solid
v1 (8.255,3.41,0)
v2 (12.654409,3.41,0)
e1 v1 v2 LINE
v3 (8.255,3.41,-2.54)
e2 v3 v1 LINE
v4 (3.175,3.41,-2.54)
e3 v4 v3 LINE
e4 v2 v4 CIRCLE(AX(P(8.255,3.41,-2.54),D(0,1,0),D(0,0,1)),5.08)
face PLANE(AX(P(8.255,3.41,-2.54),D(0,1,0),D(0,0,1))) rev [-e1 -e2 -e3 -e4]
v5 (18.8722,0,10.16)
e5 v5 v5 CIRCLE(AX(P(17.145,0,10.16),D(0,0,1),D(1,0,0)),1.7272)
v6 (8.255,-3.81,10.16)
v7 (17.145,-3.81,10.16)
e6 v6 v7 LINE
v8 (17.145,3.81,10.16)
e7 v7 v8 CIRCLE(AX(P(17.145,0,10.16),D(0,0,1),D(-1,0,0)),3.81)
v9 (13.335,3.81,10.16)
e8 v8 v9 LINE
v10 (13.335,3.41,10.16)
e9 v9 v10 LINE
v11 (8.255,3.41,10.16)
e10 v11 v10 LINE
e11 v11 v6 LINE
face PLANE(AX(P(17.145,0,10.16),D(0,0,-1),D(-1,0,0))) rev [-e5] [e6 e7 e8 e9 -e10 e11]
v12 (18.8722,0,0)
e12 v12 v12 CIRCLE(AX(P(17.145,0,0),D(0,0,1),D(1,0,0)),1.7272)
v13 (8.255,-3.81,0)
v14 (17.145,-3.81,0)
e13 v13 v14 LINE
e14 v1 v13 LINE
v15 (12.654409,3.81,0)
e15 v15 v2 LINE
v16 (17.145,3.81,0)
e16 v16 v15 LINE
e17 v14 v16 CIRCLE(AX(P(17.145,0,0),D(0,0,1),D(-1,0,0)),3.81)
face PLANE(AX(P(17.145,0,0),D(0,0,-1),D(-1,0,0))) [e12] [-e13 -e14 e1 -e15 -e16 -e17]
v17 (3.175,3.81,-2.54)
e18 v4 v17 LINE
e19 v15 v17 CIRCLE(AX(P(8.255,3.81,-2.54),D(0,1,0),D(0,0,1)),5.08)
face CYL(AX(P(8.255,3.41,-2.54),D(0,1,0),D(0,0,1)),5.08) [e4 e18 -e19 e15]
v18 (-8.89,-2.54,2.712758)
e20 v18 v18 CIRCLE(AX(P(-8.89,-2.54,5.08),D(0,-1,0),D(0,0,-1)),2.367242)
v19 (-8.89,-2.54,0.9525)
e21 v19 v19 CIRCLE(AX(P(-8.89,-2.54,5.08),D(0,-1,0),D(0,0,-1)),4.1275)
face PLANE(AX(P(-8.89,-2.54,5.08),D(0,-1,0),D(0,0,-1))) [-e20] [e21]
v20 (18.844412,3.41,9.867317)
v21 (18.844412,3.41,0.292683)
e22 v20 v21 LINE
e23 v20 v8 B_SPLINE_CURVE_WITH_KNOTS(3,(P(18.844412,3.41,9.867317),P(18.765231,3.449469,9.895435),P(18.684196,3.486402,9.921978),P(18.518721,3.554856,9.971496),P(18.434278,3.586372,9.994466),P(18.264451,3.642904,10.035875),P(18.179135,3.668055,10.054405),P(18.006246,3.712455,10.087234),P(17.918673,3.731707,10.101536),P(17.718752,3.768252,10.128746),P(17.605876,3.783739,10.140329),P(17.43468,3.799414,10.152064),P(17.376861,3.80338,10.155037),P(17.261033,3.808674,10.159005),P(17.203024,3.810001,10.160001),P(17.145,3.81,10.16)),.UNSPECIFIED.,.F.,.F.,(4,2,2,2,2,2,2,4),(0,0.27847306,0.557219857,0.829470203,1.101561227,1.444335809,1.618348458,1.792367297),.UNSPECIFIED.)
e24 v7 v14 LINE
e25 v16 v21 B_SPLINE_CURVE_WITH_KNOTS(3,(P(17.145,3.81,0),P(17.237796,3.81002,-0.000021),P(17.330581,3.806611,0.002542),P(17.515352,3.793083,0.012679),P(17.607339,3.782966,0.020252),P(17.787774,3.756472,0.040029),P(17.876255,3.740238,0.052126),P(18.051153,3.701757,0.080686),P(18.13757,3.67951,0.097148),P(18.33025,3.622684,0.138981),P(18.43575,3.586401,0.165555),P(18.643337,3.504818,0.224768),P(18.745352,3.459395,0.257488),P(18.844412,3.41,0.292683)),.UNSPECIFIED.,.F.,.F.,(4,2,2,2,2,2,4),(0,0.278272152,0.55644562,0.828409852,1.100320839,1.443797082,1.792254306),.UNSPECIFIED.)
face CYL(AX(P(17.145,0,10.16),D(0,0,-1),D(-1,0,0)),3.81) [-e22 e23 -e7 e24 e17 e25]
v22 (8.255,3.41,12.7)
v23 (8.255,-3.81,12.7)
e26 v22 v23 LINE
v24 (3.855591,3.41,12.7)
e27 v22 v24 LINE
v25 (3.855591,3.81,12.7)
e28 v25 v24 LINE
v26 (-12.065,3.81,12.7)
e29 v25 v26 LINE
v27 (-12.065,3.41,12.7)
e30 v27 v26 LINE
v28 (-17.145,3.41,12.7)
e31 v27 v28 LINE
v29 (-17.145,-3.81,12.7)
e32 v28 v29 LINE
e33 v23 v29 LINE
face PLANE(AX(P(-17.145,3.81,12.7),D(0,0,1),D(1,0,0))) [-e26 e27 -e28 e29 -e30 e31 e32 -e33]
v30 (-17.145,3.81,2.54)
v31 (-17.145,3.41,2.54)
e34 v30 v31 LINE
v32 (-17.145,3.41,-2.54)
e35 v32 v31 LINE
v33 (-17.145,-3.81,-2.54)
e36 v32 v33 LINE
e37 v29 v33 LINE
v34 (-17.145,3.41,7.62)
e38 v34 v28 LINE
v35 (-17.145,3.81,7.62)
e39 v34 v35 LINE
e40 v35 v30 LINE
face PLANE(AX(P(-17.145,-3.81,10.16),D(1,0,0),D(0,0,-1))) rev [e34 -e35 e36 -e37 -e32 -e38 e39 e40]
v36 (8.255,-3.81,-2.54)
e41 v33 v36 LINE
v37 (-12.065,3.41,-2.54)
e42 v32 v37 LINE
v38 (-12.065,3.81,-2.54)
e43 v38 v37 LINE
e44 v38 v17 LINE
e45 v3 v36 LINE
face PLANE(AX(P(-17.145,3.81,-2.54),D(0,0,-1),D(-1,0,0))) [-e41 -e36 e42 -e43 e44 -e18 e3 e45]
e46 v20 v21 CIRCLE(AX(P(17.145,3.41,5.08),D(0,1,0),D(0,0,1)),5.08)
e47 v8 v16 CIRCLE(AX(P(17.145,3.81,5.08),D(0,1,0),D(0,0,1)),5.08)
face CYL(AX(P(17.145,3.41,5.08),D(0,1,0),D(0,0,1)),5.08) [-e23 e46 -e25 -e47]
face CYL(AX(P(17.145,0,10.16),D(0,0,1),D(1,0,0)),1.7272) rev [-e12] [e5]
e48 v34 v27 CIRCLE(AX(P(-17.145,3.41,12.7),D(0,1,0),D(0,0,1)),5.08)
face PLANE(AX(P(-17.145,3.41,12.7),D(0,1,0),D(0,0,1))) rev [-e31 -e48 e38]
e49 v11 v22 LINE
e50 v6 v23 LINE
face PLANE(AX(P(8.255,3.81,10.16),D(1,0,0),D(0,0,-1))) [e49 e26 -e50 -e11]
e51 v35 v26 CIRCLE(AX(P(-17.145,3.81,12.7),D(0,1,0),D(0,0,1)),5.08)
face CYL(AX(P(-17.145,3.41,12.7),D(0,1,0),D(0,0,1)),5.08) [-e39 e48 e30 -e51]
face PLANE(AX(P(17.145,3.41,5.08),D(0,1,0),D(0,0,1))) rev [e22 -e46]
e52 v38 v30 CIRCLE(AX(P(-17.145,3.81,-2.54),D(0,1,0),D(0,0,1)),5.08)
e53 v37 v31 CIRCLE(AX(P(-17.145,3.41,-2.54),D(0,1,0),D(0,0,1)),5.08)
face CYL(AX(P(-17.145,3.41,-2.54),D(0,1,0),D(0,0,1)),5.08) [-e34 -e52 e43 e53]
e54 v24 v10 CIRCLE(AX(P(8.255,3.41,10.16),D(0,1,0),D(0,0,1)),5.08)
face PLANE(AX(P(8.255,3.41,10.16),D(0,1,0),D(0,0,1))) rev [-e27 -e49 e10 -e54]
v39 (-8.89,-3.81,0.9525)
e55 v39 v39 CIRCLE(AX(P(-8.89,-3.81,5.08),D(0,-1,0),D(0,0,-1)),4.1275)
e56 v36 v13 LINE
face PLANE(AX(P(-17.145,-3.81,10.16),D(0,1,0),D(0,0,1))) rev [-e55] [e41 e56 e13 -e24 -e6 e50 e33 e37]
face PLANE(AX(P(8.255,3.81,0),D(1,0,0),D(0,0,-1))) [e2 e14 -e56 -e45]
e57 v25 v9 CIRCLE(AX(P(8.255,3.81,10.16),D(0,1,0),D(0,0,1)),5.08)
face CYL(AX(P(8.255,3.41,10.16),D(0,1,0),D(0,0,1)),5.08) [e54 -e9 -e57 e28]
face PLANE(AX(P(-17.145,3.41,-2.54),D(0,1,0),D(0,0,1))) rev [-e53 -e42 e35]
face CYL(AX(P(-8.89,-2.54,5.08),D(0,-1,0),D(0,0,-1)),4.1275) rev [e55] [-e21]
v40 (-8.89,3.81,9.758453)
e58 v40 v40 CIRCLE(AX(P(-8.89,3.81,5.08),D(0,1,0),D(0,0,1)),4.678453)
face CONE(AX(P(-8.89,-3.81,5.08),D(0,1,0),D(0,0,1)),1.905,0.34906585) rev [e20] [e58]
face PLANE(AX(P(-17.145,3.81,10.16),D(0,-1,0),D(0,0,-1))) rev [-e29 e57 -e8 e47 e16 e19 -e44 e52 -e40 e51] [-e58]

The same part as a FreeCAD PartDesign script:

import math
import FreeCAD as App
import Part
import Sketcher

V = App.Vector
Q = App.Units.Quantity

doc = App.newDocument("Part")
params = doc.addObject("Spreadsheet::Sheet", "Params")
for row, (alias, value) in enumerate([
    ("sketch1_radius", "0.15 in"),
    ("sketch1_width", "1.35 in"),
    ("pad1_length", "0.4 in"),
    ("sketch2_diameter", "0.136 in"),
    ("hole_diameter", "0.136 in"),
    ("sketch3_diameter", "0.15 in"),
    ("pocket1_length", "8.62 mm"),
    ("pocket1_taper", "20 deg"),
    ("sketch4_diameter", "0.325 in"),
    ("pocket2_length", "0.05 in"),
    ("sketch5_width", "1 in"),
    ("sketch5_height", "0.1 in"),
    ("pad2_length", "0.3 in"),
    ("sketch6_diameter", "0.4 in"),
    ("pad3_length", "0.4 mm"),
], start=1):
    params.set(f"A{row}", alias)
    params.set(f"B{row}", "=" + value)
    params.setAlias(f"B{row}", alias)

body = doc.addObject("PartDesign::Body", "Body")

# Sketch on XY plane
sketch1 = doc.addObject("Sketcher::SketchObject", "Sketch")
body.addObject(sketch1)
sketch1.AttachmentSupport = (doc.XY_Plane, [""])
sketch1.MapMode = "FlatFace"
sketch1.addGeometry([
    Part.LineSegment(V(-17.1, -3.8, 0), V(17.1, -3.8, 0)),
    Part.ArcOfCircle(Part.Circle(V(17.1, 0, 0), V(0, 0, 1), 3.8), math.radians(-90), math.radians(90)),
    Part.LineSegment(V(17.1, 3.8, 0), V(-17.1, 3.8, 0)),
    Part.LineSegment(V(-17.1, 3.8, 0), V(-17.1, -3.8, 0)),
], False)
sketch1.addConstraint([
    Sketcher.Constraint("Tangent", 0, 2, 1, 1),
    Sketcher.Constraint("Tangent", 1, 2, 2, 1),
    Sketcher.Constraint("Coincident", 2, 2, 3, 1),
    Sketcher.Constraint("Coincident", 3, 2, 0, 1),
    Sketcher.Constraint("Horizontal", 0),
    Sketcher.Constraint("Horizontal", 2),
    Sketcher.Constraint("Vertical", 3),
    Sketcher.Constraint("Symmetric", 0, 2, 2, 2, -1, 1),
    Sketcher.Constraint("Radius", 1, Q("0.15 in")),
    Sketcher.Constraint("DistanceX", 0, 1, 0, 2, Q("1.35 in")),
])
sketch1.setExpression("Constraints[8]", "Params.sketch1_radius")
sketch1.setExpression("Constraints[9]", "Params.sketch1_width")
pad1 = doc.addObject("PartDesign::Pad", "Pad")
body.addObject(pad1)
pad1.Profile = sketch1
pad1.setExpression("Length", "Params.pad1_length")

# Sketch on XY plane
sketch2 = doc.addObject("Sketcher::SketchObject", "Sketch001")
body.addObject(sketch2)
sketch2.AttachmentSupport = (doc.XY_Plane, [""])
sketch2.MapMode = "FlatFace"
sketch2.AttachmentOffset = App.Placement(V(0, 0, 0.4 * 25.4), App.Rotation())
sketch2.addGeometry(Part.Circle(V(17.1, 0, 0), V(0, 0, 1), 1.7), False)
sketch2.addConstraint([
    Sketcher.Constraint("PointOnObject", 0, 3, -1),
    Sketcher.Constraint("Diameter", 0, Q("0.136 in")),
    Sketcher.Constraint("DistanceX", -1, 1, 0, 3, Q("0.675 in")),
])
sketch2.setExpression("Constraints[1]", "Params.sketch2_diameter")
doc.recompute()
hole = doc.addObject("PartDesign::Hole", "Hole")
body.addObject(hole)
hole.Profile = sketch2
hole.ThreadType = "None"
hole.setExpression("Diameter", "Params.hole_diameter")
hole.DepthType = "ThroughAll"

# Sketch on XZ plane
sketch3 = doc.addObject("Sketcher::SketchObject", "Sketch002")
body.addObject(sketch3)
sketch3.AttachmentSupport = (doc.XZ_Plane, [""])
sketch3.MapMode = "FlatFace"
sketch3.AttachmentOffset = App.Placement(V(0, 0, 0.15 * 25.4), App.Rotation())
sketch3.addGeometry(Part.Circle(V(-8.9, 5.1, 0), V(0, 0, 1), 1.9), False)
sketch3.addConstraint([
    Sketcher.Constraint("Diameter", 0, Q("0.15 in")),
    Sketcher.Constraint("DistanceY", -1, 1, 0, 3, Q("0.2 in")),
    Sketcher.Constraint("DistanceX", 0, 3, -1, 1, Q("0.35 in")),
])
sketch3.setExpression("Constraints[0]", "Params.sketch3_diameter")
pocket1 = doc.addObject("PartDesign::Pocket", "Pocket")
body.addObject(pocket1)
pocket1.Profile = sketch3
pocket1.setExpression("Length", "Params.pocket1_length")
pocket1.setExpression("TaperAngle", "Params.pocket1_taper")

# Sketch on XZ plane
sketch4 = doc.addObject("Sketcher::SketchObject", "Sketch003")
body.addObject(sketch4)
sketch4.AttachmentSupport = (doc.XZ_Plane, [""])
sketch4.MapMode = "FlatFace"
sketch4.AttachmentOffset = App.Placement(V(0, 0, 0.15 * 25.4), App.Rotation())
sketch4.addGeometry(Part.Circle(V(-8.9, 5.1, 0), V(0, 0, 1), 4.1), False)
sketch4.addConstraint([
    Sketcher.Constraint("Diameter", 0, Q("0.325 in")),
    Sketcher.Constraint("DistanceY", -1, 1, 0, 3, Q("0.2 in")),
    Sketcher.Constraint("DistanceX", 0, 3, -1, 1, Q("0.35 in")),
])
sketch4.setExpression("Constraints[0]", "Params.sketch4_diameter")
pocket2 = doc.addObject("PartDesign::Pocket", "Pocket001")
body.addObject(pocket2)
pocket2.Profile = sketch4
pocket2.setExpression("Length", "Params.pocket2_length")

# Sketch on XZ plane
sketch5 = doc.addObject("Sketcher::SketchObject", "Sketch004")
body.addObject(sketch5)
sketch5.AttachmentSupport = (doc.XZ_Plane, [""])
sketch5.MapMode = "FlatFace"
sketch5.AttachmentOffset = App.Placement(V(0, 0, 0.15 * 25.4), App.Rotation())
sketch5.addGeometry([
    Part.LineSegment(V(-17.1, 12.7, 0), V(-17.1, 10.2, 0)),  # 0
    Part.LineSegment(V(-17.1, 10.2, 0), V(8.3, 10.2, 0)),  # 1
    Part.LineSegment(V(8.3, 10.2, 0), V(8.3, 12.7, 0)),  # 2
    Part.LineSegment(V(8.3, 12.7, 0), V(-17.1, 12.7, 0)),  # 3
    Part.LineSegment(V(-17.1, 0, 0), V(-17.1, -2.5, 0)),  # 4
    Part.LineSegment(V(-17.1, -2.5, 0), V(8.3, -2.5, 0)),  # 5
    Part.LineSegment(V(8.3, -2.5, 0), V(8.3, 0, 0)),  # 6
    Part.LineSegment(V(8.3, 0, 0), V(-17.1, 0, 0)),  # 7
], False)
sketch5.addConstraint([
    Sketcher.Constraint("Coincident", 0, 2, 1, 1),
    Sketcher.Constraint("Coincident", 1, 2, 2, 1),
    Sketcher.Constraint("Coincident", 2, 2, 3, 1),
    Sketcher.Constraint("Coincident", 3, 2, 0, 1),
    Sketcher.Constraint("Coincident", 4, 2, 5, 1),
    Sketcher.Constraint("Coincident", 5, 2, 6, 1),
    Sketcher.Constraint("Coincident", 6, 2, 7, 1),
    Sketcher.Constraint("Coincident", 7, 2, 4, 1),
    Sketcher.Constraint("Vertical", 0),
    Sketcher.Constraint("Horizontal", 1),
    Sketcher.Constraint("Vertical", 2),
    Sketcher.Constraint("Horizontal", 3),
    Sketcher.Constraint("Vertical", 4),
    Sketcher.Constraint("Horizontal", 5),
    Sketcher.Constraint("Vertical", 6),
    Sketcher.Constraint("Horizontal", 7),
    Sketcher.Constraint("PointOnObject", 6, 2, -1),
    Sketcher.Constraint("Vertical", 3, 2, 4, 2),
    Sketcher.Constraint("Vertical", 2, 2, 5, 2),
    Sketcher.Constraint("Equal", 2, 4),
    Sketcher.Constraint("DistanceX", 1, 1, 1, 2, Q("1 in")),
    Sketcher.Constraint("DistanceY", 0, 2, 0, 1, Q("0.1 in")),
    Sketcher.Constraint("DistanceY", -1, 1, 0, 2, Q("0.4 in")),
    Sketcher.Constraint("DistanceX", 0, 2, -1, 1, Q("0.675 in")),
])
sketch5.setExpression("Constraints[20]", "Params.sketch5_width")
sketch5.setExpression("Constraints[21]", "Params.sketch5_height")
pad2 = doc.addObject("PartDesign::Pad", "Pad001")
body.addObject(pad2)
pad2.Profile = sketch5
pad2.setExpression("Length", "Params.pad2_length")
pad2.Reversed = True

# Sketch on XZ plane
sketch6 = doc.addObject("Sketcher::SketchObject", "Sketch005")
body.addObject(sketch6)
sketch6.AttachmentSupport = (doc.XZ_Plane, [""])
sketch6.MapMode = "FlatFace"
sketch6.AttachmentOffset = App.Placement(V(0, 0, -0.15 * 25.4), App.Rotation())
sketch6.addGeometry([
    Part.Circle(V(8, -3, 0), V(0, 0, 1), 5),  # 0
    Part.Circle(V(-17, 13, 0), V(0, 0, 1), 5),  # 1
    Part.Circle(V(-17, -3, 0), V(0, 0, 1), 5),  # 2
    Part.Circle(V(8, 10, 0), V(0, 0, 1), 5),  # 3
    Part.Circle(V(17, 5, 0), V(0, 0, 1), 5),  # 4
], False)
sketch6.addConstraint([
    Sketcher.Constraint("Equal", 0, 1),
    Sketcher.Constraint("Equal", 1, 2),
    Sketcher.Constraint("Equal", 2, 3),
    Sketcher.Constraint("Equal", 3, 4),
    Sketcher.Constraint("Horizontal", 0, 3, 2, 3),
    Sketcher.Constraint("Vertical", 1, 3, 2, 3),
    Sketcher.Constraint("Vertical", 0, 3, 3, 3),
    Sketcher.Constraint("Diameter", 0, Q("0.4 in")),
    Sketcher.Constraint("DistanceX", 1, 3, 0, 3, Q("1 in")),
    Sketcher.Constraint("DistanceY", 0, 3, -1, 1, Q("0.1 in")),
    Sketcher.Constraint("DistanceY", -1, 1, 1, 3, Q("0.5 in")),
    Sketcher.Constraint("DistanceY", -1, 1, 3, 3, Q("0.4 in")),
    Sketcher.Constraint("DistanceY", -1, 1, 4, 3, Q("0.2 in")),
    Sketcher.Constraint("DistanceX", 3, 3, 4, 3, Q("0.35 in")),
    Sketcher.Constraint("DistanceX", -1, 1, 0, 3, Q("0.325 in")),
])
sketch6.setExpression("Constraints[7]", "Params.sketch6_diameter")
pad3 = doc.addObject("PartDesign::Pad", "Pad002")
body.addObject(pad3)
pad3.Profile = sketch6
pad3.setExpression("Length", "Params.pad3_length")

doc.recompute()
